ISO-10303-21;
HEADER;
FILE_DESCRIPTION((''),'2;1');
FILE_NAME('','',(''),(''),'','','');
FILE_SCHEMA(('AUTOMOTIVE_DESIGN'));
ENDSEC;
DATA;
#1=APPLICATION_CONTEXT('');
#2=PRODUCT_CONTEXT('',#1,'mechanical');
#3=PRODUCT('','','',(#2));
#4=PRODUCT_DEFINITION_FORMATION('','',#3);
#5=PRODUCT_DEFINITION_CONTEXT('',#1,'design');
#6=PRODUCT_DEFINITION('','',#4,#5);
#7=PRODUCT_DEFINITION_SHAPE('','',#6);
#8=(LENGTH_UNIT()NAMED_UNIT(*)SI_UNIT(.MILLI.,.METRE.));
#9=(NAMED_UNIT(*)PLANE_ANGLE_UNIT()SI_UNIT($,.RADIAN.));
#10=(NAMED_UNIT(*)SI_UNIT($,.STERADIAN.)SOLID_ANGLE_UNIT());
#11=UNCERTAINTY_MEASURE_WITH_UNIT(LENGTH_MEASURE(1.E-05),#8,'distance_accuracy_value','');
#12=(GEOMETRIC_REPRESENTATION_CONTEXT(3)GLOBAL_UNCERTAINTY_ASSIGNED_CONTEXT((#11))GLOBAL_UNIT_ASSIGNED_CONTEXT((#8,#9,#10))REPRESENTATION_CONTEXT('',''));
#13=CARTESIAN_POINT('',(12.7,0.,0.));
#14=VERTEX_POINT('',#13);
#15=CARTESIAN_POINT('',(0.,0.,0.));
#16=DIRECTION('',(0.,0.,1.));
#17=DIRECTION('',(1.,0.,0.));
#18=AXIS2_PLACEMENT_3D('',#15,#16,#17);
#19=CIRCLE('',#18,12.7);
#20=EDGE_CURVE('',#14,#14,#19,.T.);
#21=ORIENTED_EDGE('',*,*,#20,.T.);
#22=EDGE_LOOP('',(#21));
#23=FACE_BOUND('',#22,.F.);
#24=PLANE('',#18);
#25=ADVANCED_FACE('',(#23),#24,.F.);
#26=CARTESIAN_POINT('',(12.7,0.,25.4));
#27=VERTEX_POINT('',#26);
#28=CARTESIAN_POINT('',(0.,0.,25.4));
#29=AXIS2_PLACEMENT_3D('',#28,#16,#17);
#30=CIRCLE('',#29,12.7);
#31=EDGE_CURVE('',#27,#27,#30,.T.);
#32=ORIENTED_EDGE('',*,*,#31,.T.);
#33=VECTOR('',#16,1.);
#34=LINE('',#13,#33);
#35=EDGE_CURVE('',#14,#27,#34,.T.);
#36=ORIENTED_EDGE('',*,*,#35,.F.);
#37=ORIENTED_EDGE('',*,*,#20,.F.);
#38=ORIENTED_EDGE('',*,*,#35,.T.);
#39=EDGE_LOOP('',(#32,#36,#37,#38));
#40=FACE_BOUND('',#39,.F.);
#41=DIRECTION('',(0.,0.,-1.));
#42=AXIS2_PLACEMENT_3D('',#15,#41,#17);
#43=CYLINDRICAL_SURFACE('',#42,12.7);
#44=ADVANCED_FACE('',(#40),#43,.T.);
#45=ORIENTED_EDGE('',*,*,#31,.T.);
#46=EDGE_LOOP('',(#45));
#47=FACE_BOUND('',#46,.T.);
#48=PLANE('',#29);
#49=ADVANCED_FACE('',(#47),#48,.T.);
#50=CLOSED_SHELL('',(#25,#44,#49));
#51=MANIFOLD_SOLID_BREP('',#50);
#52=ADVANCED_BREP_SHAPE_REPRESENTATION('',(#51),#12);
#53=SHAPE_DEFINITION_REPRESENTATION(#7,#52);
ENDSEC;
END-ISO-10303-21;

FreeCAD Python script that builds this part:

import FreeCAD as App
import Part
import Sketcher
from FreeCAD import Vector
Q = App.Units.Quantity

doc = App.newDocument("Part")
params = doc.addObject("Spreadsheet::Sheet", "Params")
for row, (alias, value) in enumerate([
    ("sketch1_diameter", "1 in"),
    ("pad1_length", "1 in"),
], start=1):
    params.set(f"A{row}", alias)
    params.set(f"B{row}", "=" + value)
    params.setAlias(f"B{row}", alias)

body = doc.addObject("PartDesign::Body", "Body")

# Sketch on XY plane
sketch1 = body.newObject("Sketcher::SketchObject", "Sketch")
sketch1.AttachmentSupport = (doc.getObject("XY_Plane"), [""])
sketch1.MapMode = "FlatFace"
sketch1.addGeometry(Part.Circle(Vector(0, 0, 0), Vector(0, 0, 1), 13), False)
sketch1.addConstraint(Sketcher.Constraint("Coincident", 0, 3, -1, 1))
sketch1.addConstraint(Sketcher.Constraint("Diameter", 0, Q("1 in")))
sketch1.setExpression("Constraints[1]", "Params.sketch1_diameter")
pad1 = body.newObject("PartDesign::Pad", "Pad")
pad1.Profile = sketch1
pad1.setExpression("Length", "Params.pad1_length")

doc.recompute()
